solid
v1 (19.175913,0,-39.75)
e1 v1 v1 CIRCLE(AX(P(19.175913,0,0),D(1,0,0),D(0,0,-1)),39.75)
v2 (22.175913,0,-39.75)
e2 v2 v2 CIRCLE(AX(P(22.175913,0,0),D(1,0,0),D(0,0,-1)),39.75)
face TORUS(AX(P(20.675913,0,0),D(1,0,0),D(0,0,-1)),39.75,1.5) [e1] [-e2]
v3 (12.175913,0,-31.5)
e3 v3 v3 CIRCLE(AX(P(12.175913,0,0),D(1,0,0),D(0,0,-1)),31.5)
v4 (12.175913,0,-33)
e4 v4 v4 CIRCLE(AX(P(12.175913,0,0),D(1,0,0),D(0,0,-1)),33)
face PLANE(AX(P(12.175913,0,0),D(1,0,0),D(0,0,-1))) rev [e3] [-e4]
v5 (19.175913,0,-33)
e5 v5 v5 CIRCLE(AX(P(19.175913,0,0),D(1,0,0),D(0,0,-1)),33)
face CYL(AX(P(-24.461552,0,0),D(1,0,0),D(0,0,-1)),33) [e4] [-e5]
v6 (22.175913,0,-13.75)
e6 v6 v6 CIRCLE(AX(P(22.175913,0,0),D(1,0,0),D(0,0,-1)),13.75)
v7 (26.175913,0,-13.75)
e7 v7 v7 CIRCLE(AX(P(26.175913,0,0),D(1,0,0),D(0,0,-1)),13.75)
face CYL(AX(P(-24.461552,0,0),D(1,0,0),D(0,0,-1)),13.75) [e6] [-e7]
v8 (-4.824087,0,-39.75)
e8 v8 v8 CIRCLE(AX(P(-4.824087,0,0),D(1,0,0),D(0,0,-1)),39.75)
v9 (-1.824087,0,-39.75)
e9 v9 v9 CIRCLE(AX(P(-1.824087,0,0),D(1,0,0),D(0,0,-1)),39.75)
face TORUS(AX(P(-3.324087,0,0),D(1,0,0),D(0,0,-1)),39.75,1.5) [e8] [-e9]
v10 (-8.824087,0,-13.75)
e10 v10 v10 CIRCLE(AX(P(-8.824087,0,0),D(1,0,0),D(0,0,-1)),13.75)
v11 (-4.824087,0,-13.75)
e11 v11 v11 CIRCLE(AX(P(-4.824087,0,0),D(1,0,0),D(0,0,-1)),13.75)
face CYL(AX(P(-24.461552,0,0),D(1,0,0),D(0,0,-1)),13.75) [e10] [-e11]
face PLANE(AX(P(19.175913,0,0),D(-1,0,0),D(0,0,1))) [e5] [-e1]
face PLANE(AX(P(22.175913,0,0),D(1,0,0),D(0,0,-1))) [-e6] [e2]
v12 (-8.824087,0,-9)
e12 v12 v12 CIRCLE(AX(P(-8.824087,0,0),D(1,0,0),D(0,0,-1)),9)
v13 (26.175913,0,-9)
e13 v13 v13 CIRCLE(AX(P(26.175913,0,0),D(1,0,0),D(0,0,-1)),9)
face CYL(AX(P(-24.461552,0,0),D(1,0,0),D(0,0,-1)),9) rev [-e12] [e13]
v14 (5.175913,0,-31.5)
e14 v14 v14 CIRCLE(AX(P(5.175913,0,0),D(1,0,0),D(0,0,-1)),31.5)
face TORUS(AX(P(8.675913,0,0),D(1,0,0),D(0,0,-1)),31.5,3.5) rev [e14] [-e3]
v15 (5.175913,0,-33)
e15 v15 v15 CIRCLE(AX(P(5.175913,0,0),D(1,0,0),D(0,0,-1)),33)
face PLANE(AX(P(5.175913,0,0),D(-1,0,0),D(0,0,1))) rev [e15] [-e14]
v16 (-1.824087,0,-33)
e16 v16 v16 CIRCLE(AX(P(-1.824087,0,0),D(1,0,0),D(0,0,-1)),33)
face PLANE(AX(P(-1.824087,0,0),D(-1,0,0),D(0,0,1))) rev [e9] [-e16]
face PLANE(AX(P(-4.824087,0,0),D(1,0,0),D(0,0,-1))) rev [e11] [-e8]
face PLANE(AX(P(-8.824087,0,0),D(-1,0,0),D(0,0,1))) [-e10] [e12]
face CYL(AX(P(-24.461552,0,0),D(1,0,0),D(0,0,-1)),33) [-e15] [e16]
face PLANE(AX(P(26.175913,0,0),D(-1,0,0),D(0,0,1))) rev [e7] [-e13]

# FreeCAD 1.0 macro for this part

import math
import FreeCAD as App
import Part
import Sketcher
Q = App.Units.Quantity

doc = App.newDocument("Part")
body = doc.addObject("PartDesign::Body", "Body")

# Sketch on XY plane
sketch1 = body.newObject("Sketcher::SketchObject", "Sketch")
sketch1.AttachmentSupport = (doc.getObject("XY_Plane"), [""])
sketch1.MapMode = "FlatFace"
sketch1.addGeometry(Part.LineSegment(App.Vector(-8.824087, 9, 0), App.Vector(26.175913, 9, 0)), False)
sketch1.addGeometry(Part.LineSegment(App.Vector(26.175913, 9, 0), App.Vector(26.175913, 13.75, 0)), False)
sketch1.addGeometry(Part.LineSegment(App.Vector(26.175913, 13.75, 0), App.Vector(22.175913, 13.75, 0)), False)
sketch1.addGeometry(Part.LineSegment(App.Vector(22.175913, 13.75, 0), App.Vector(22.175913, 39.75, 0)), False)
sketch1.addGeometry(Part.ArcOfCircle(Part.Circle(App.Vector(20.675913, 39.75, 0), App.Vector(0, 0, 1), 1.5), math.radians(0), math.radians(180)), False)
sketch1.addGeometry(Part.LineSegment(App.Vector(19.175913, 39.75, 0), App.Vector(19.175913, 33, 0)), False)
sketch1.addGeometry(Part.LineSegment(App.Vector(19.175913, 33, 0), App.Vector(12.175913, 33, 0)), False)
sketch1.addGeometry(Part.LineSegment(App.Vector(12.175913, 33, 0), App.Vector(12.175913, 31.5, 0)), False)
sketch1.addGeometry(Part.ArcOfCircle(Part.Circle(App.Vector(8.675913, 31.5, 0), App.Vector(0, 0, 1), 3.5), math.radians(-90), math.radians(0)), False)
sketch1.addGeometry(Part.ArcOfCircle(Part.Circle(App.Vector(8.675913, 31.5, 0), App.Vector(0, 0, 1), 3.5), math.radians(-180), math.radians(-90)), False)
sketch1.addGeometry(Part.LineSegment(App.Vector(5.175913, 31.5, 0), App.Vector(5.175913, 33, 0)), False)
sketch1.addGeometry(Part.LineSegment(App.Vector(5.175913, 33, 0), App.Vector(-1.824087, 33, 0)), False)
sketch1.addGeometry(Part.LineSegment(App.Vector(-1.824087, 33, 0), App.Vector(-1.824087, 39.75, 0)), False)
sketch1.addGeometry(Part.ArcOfCircle(Part.Circle(App.Vector(-3.324087, 39.75, 0), App.Vector(0, 0, 1), 1.5), math.radians(0), math.radians(180)), False)
sketch1.addGeometry(Part.LineSegment(App.Vector(-4.824087, 39.75, 0), App.Vector(-4.824087, 13.75, 0)), False)
sketch1.addGeometry(Part.LineSegment(App.Vector(-4.824087, 13.75, 0), App.Vector(-8.824087, 13.75, 0)), False)
sketch1.addGeometry(Part.LineSegment(App.Vector(-8.824087, 13.75, 0), App.Vector(-8.824087, 9, 0)), False)
sketch1.addConstraint(Sketcher.Constraint("Coincident", 0, 2, 1, 1))
sketch1.addConstraint(Sketcher.Constraint("Coincident", 1, 2, 2, 1))
sketch1.addConstraint(Sketcher.Constraint("Coincident", 2, 2, 3, 1))
sketch1.addConstraint(Sketcher.Constraint("Tangent", 3, 2, 4, 1))
sketch1.addConstraint(Sketcher.Constraint("Tangent", 4, 2, 5, 1))
sketch1.addConstraint(Sketcher.Constraint("Coincident", 5, 2, 6, 1))
sketch1.addConstraint(Sketcher.Constraint("Coincident", 6, 2, 7, 1))
sketch1.addConstraint(Sketcher.Constraint("Tangent", 7, 2, 8, 2))
sketch1.addConstraint(Sketcher.Constraint("Tangent", 8, 1, 9, 2))
sketch1.addConstraint(Sketcher.Constraint("Tangent", 9, 1, 10, 1))
sketch1.addConstraint(Sketcher.Constraint("Coincident", 10, 2, 11, 1))
sketch1.addConstraint(Sketcher.Constraint("Coincident", 11, 2, 12, 1))
sketch1.addConstraint(Sketcher.Constraint("Tangent", 12, 2, 13, 1))
sketch1.addConstraint(Sketcher.Constraint("Tangent", 13, 2, 14, 1))
sketch1.addConstraint(Sketcher.Constraint("Coincident", 14, 2, 15, 1))
sketch1.addConstraint(Sketcher.Constraint("Coincident", 15, 2, 16, 1))
sketch1.addConstraint(Sketcher.Constraint("Coincident", 16, 2, 0, 1))
sketch1.addConstraint(Sketcher.Constraint("Horizontal", 0))
sketch1.addConstraint(Sketcher.Constraint("Vertical", 1))
sketch1.addConstraint(Sketcher.Constraint("Horizontal", 2))
sketch1.addConstraint(Sketcher.Constraint("Vertical", 3))
sketch1.addConstraint(Sketcher.Constraint("Vertical", 5))
sketch1.addConstraint(Sketcher.Constraint("Horizontal", 6))
sketch1.addConstraint(Sketcher.Constraint("Vertical", 7))
sketch1.addConstraint(Sketcher.Constraint("Vertical", 10))
sketch1.addConstraint(Sketcher.Constraint("Horizontal", 11))
sketch1.addConstraint(Sketcher.Constraint("Vertical", 12))
sketch1.addConstraint(Sketcher.Constraint("Vertical", 14))
sketch1.addConstraint(Sketcher.Constraint("Horizontal", 15))
sketch1.addConstraint(Sketcher.Constraint("Vertical", 16))
sketch1.addConstraint(Sketcher.Constraint("Equal", 8, 9))
sketch1.addConstraint(Sketcher.Constraint("Equal", 4, 13))
sketch1.addConstraint(Sketcher.Constraint("Horizontal", 4, 3, 13, 3))
sketch1.addConstraint(Sketcher.Constraint("Horizontal", 6, 2, 10, 2))
sketch1.addConstraint(Sketcher.Constraint("Horizontal", 2, 2, 14, 2))
sketch1.addConstraint(Sketcher.Constraint("Vertical", 9, 3, 8, 1))
sketch1.addConstraint(Sketcher.Constraint("Equal", 6, 11))
sketch1.addConstraint(Sketcher.Constraint("Equal", 2, 15))
sketch1.addConstraint(Sketcher.Constraint("Radius", 4, Q("1.5 mm")))
sketch1.addConstraint(Sketcher.Constraint("Radius", 8, Q("3.5 mm")))
sketch1.addConstraint(Sketcher.Constraint("DistanceX", 0, 1, 0, 2, Q("35 mm")))
sketch1.addConstraint(Sketcher.Constraint("DistanceX", 2, 2, 2, 1, Q("4 mm")))
sketch1.addConstraint(Sketcher.Constraint("DistanceY", 3, 1, 3, 2, Q("26 mm")))
sketch1.addConstraint(Sketcher.Constraint("DistanceY", 7, 2, 7, 1, Q("1.5 mm")))
sketch1.addConstraint(Sketcher.Constraint("DistanceY", -1, 1, 0, 2, Q("9 mm")))
sketch1.addConstraint(Sketcher.Constraint("DistanceY", -1, 1, 5, 2, Q("33 mm")))
sketch1.addConstraint(Sketcher.Constraint("DistanceY", 1, 1, 1, 2, Q("4.75 mm")))
sketch1.addConstraint(Sketcher.Constraint("DistanceX", -1, 1, 4, 3, Q("20.675913 mm")))
revolution = body.newObject("PartDesign::Revolution", "Revolution")
revolution.Profile = sketch1
revolution.ReferenceAxis = (sketch1, ["H_Axis"])
revolution.Angle = 360

doc.recompute()
